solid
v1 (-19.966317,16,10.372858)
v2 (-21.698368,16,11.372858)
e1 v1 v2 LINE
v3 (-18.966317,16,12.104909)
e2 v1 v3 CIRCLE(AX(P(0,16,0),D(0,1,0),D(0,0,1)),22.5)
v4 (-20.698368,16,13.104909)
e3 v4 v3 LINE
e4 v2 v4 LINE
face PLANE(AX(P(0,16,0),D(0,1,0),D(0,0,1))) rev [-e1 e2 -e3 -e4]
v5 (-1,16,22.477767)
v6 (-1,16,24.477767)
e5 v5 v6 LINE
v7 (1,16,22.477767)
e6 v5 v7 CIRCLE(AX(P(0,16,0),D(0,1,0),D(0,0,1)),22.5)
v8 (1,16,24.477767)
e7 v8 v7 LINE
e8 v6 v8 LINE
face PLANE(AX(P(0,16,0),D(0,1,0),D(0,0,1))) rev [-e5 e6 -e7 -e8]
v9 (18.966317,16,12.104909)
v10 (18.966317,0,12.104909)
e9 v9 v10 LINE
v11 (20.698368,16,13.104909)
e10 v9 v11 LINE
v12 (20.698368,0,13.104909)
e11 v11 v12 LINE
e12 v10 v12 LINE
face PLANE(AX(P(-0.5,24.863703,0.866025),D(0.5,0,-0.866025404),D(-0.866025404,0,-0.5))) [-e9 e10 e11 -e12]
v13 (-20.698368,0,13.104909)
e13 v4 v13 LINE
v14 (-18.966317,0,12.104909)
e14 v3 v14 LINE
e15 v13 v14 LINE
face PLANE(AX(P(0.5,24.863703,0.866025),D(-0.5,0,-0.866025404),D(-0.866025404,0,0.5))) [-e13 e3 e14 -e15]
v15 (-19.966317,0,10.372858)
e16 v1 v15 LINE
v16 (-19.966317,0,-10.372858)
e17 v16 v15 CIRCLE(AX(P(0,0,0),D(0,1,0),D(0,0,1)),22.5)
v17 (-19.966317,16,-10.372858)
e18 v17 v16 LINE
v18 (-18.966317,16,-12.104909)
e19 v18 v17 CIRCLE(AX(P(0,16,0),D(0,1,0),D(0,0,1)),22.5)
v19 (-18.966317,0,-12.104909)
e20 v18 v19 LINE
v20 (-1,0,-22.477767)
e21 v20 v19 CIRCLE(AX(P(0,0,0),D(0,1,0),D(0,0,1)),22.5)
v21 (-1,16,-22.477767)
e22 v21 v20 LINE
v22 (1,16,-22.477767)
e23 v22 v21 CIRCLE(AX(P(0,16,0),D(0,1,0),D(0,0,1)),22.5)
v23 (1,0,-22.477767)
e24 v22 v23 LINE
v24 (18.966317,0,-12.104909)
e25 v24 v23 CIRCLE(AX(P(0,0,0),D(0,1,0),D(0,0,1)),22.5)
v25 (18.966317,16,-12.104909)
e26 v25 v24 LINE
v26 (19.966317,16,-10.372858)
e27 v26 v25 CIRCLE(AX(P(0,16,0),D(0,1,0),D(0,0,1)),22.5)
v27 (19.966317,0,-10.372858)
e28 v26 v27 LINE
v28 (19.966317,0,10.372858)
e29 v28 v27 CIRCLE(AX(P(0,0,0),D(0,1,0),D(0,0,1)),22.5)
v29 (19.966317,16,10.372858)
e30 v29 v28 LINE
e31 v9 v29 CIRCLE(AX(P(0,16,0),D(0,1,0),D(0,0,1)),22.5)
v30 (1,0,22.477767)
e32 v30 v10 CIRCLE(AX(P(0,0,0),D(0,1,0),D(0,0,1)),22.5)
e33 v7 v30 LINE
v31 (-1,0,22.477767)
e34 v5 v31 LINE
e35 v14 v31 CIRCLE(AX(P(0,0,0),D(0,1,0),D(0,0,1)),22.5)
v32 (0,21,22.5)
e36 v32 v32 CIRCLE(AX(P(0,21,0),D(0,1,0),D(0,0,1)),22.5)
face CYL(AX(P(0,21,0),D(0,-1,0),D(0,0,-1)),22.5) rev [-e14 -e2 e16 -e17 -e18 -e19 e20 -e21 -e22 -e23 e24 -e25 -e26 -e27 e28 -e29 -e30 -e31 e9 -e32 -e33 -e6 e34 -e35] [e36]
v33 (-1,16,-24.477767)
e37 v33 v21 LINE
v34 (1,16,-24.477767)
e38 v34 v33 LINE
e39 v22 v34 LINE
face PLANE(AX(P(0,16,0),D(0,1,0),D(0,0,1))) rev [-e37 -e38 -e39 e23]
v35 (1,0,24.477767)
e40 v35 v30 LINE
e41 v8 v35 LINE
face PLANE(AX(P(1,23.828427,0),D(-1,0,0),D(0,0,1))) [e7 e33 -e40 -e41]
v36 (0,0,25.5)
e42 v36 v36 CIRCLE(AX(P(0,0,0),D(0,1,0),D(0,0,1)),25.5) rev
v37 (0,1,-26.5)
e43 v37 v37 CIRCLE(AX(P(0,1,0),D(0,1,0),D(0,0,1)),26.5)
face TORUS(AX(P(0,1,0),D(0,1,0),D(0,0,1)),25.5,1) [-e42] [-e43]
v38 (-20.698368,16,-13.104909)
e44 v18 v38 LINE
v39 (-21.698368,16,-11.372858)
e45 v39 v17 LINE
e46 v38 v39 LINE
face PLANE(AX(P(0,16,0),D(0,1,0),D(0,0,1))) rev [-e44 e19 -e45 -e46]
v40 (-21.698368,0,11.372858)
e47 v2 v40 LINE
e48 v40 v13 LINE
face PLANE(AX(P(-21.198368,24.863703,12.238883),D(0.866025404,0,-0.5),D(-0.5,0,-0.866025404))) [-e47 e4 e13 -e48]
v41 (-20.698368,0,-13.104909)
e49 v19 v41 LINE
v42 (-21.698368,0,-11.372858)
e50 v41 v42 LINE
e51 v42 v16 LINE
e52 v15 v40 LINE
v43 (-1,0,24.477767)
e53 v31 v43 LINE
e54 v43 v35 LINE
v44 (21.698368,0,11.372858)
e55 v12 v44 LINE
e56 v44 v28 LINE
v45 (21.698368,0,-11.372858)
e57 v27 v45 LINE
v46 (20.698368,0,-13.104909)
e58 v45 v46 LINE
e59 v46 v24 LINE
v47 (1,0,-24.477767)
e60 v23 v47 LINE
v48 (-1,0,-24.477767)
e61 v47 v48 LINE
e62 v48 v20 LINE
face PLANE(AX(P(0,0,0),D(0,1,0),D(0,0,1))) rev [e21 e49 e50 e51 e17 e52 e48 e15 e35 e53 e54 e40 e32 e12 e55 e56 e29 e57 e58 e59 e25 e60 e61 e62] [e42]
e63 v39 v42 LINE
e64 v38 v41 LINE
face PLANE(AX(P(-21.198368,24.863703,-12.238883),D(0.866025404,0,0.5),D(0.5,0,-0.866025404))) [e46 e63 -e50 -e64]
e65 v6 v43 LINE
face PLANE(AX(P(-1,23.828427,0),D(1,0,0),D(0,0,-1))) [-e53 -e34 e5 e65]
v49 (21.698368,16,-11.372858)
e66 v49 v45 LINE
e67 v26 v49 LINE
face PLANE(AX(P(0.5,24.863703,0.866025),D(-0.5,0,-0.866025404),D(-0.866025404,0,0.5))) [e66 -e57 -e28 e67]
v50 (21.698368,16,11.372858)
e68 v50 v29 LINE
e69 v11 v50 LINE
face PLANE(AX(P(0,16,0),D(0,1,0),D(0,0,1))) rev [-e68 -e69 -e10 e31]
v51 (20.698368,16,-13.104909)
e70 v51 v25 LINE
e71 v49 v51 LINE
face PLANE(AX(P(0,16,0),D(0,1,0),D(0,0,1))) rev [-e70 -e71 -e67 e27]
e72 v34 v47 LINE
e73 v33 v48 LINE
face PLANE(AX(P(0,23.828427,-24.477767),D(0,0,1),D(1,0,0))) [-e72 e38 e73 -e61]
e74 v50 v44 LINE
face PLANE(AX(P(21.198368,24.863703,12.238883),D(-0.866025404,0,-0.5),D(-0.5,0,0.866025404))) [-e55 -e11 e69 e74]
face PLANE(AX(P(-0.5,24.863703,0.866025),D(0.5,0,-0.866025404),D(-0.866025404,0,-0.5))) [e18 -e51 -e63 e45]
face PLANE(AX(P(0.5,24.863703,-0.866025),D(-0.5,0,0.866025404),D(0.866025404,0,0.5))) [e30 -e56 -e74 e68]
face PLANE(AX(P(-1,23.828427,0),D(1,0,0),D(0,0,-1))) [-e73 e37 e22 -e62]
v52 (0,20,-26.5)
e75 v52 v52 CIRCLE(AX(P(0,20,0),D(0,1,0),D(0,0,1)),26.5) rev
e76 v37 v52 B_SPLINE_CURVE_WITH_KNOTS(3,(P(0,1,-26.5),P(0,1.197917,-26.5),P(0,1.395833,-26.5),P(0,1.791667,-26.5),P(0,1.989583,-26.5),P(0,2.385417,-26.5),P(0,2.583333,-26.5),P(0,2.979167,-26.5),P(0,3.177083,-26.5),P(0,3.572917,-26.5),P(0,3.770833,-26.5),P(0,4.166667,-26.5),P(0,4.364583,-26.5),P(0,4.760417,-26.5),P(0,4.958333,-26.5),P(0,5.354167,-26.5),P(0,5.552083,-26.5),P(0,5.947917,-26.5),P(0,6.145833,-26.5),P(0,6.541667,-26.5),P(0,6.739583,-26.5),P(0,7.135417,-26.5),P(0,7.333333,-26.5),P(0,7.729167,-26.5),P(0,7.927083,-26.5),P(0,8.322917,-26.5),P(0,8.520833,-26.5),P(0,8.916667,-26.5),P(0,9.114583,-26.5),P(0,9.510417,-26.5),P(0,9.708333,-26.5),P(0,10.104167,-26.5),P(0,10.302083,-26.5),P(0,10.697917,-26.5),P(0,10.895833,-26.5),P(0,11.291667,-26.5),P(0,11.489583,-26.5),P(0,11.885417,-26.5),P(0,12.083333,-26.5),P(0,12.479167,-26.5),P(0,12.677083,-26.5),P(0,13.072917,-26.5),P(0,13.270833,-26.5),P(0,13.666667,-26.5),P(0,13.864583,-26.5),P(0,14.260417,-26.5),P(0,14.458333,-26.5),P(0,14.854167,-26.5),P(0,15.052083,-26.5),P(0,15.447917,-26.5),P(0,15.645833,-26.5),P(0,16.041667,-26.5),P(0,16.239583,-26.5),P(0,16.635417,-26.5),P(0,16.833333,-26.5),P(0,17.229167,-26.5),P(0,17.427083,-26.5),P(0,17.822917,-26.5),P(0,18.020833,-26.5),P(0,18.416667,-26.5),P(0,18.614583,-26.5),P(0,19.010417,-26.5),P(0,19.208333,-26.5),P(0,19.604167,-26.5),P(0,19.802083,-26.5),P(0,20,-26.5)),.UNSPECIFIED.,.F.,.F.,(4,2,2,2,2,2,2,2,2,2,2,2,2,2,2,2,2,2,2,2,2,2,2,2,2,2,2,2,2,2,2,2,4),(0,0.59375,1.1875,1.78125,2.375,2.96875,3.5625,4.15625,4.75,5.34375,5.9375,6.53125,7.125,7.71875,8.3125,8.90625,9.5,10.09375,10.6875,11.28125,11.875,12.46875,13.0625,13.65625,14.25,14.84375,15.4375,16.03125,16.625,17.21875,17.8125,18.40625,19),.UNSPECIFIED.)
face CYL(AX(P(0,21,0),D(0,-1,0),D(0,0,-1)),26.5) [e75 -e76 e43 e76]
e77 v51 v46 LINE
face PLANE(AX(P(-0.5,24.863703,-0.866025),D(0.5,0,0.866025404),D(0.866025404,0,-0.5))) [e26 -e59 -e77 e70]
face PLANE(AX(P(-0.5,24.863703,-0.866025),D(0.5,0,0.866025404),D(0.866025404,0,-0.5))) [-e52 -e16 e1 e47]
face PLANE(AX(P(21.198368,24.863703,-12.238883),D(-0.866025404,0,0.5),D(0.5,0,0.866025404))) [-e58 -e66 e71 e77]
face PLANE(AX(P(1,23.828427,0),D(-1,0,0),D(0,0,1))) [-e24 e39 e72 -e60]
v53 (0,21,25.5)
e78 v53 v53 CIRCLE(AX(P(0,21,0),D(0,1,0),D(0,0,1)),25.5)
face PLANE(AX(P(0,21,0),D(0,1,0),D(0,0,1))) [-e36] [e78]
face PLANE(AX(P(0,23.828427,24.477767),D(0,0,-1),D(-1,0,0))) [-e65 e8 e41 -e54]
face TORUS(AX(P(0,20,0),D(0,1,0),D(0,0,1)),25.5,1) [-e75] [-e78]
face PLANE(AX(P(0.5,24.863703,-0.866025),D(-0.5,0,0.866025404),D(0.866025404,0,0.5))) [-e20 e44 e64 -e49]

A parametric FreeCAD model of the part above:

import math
import FreeCAD as App
import Part
import Sketcher


def edges_at(feature, points):
    """Names of the edges that pass closest to the given points."""
    edges = feature.Shape.Edges
    near = lambda p: min(range(len(edges)), key=lambda i: edges[i].distToShape(Part.Vertex(*p))[0])
    return sorted({f"Edge{near(p) + 1}" for p in points})

doc = App.newDocument("Part")
body = doc.addObject("PartDesign::Body", "Body")

# Sketch on XZ plane
sketch1 = body.newObject("Sketcher::SketchObject", "Sketch")
sketch1.AttachmentSupport = (doc.getObject("XZ_Plane"), [""])
sketch1.MapMode = "FlatFace"
sketch1.addGeometry([
    Part.Circle(App.Vector(0, 0, 0), App.Vector(0, 0, 1), 26.5),
    Part.Circle(App.Vector(0, 0, 0), App.Vector(0, 0, 1), 22.5),
], False)
sketch1.addConstraint([
    Sketcher.Constraint("Coincident", 0, 3, -1, 1),
    Sketcher.Constraint("Coincident", 1, 3, -1, 1),
    Sketcher.Constraint("Diameter", 0, 53.0),
    Sketcher.Constraint("Diameter", 1, 45.0),
])
pad1 = body.newObject("PartDesign::Pad", "Pad")
pad1.Profile = sketch1
pad1.Length = 21
pad1.Reversed = True

# Sketch on XZ plane
sketch2 = body.newObject("Sketcher::SketchObject", "Sketch001")
sketch2.AttachmentSupport = (doc.getObject("XZ_Plane"), [""])
sketch2.MapMode = "FlatFace"
sketch2.addGeometry([
    Part.ArcOfCircle(Part.Circle(App.Vector(0, 0.000002, 0), App.Vector(0, 0, 1), 22.499998), math.radians(90), math.radians(92.547318)),  # 0
    Part.ArcOfCircle(Part.Circle(App.Vector(0, 0.000002, 0), App.Vector(0, 0, 1), 22.499998), math.radians(87.452682), math.radians(90)),  # 1
    Part.LineSegment(App.Vector(1, 22.477767, 0), App.Vector(1, 24.477767, 0)),  # 2
    Part.LineSegment(App.Vector(1, 24.477767, 0), App.Vector(-1, 24.477767, 0)),  # 3
    Part.LineSegment(App.Vector(-1, 24.477767, 0), App.Vector(-1, 22.477767, 0)),  # 4
], False)
sketch2.addConstraint([
    Sketcher.Constraint("Tangent", 0, 1, 1, 2),
    Sketcher.Constraint("Coincident", 1, 1, 2, 1),
    Sketcher.Constraint("Coincident", 2, 2, 3, 1),
    Sketcher.Constraint("Coincident", 3, 2, 4, 1),
    Sketcher.Constraint("Coincident", 4, 2, 0, 2),
    Sketcher.Constraint("Vertical", 2),
    Sketcher.Constraint("Horizontal", 3),
    Sketcher.Constraint("Vertical", 4),
    Sketcher.Constraint("Coincident", 0, 3, -1, 1),
    Sketcher.Constraint("Equal", 0, 1),
    Sketcher.Constraint("PointOnObject", 0, 1, -2),
    Sketcher.Constraint("Horizontal", 1, 1, 4, 2),
    Sketcher.Constraint("Equal", 3, 2),
    Sketcher.Constraint("Radius", 0, 22.499998),
    Sketcher.Constraint("DistanceX", 3, 2, 3, 1, 2.0),
])
pocket1 = body.newObject("PartDesign::Pocket", "Pocket")
pocket1.Profile = sketch2
pocket1.Length = 16
doc.recompute()

polarpattern = body.newObject("PartDesign::PolarPattern", "PolarPattern")
polarpattern.Originals = [pocket1]
polarpattern.Axis = (doc.getObject("Y_Axis"), [""])
polarpattern.Angle = 360
polarpattern.Occurrences = 6
body.Tip = polarpattern
doc.recompute()

fillet = body.newObject("PartDesign::Fillet", "Fillet")
fillet.Base = (polarpattern, edges_at(polarpattern, [(0, 0, 26.5), (0, 21, 26.5)]))
fillet.Radius = 1

doc.recompute()
